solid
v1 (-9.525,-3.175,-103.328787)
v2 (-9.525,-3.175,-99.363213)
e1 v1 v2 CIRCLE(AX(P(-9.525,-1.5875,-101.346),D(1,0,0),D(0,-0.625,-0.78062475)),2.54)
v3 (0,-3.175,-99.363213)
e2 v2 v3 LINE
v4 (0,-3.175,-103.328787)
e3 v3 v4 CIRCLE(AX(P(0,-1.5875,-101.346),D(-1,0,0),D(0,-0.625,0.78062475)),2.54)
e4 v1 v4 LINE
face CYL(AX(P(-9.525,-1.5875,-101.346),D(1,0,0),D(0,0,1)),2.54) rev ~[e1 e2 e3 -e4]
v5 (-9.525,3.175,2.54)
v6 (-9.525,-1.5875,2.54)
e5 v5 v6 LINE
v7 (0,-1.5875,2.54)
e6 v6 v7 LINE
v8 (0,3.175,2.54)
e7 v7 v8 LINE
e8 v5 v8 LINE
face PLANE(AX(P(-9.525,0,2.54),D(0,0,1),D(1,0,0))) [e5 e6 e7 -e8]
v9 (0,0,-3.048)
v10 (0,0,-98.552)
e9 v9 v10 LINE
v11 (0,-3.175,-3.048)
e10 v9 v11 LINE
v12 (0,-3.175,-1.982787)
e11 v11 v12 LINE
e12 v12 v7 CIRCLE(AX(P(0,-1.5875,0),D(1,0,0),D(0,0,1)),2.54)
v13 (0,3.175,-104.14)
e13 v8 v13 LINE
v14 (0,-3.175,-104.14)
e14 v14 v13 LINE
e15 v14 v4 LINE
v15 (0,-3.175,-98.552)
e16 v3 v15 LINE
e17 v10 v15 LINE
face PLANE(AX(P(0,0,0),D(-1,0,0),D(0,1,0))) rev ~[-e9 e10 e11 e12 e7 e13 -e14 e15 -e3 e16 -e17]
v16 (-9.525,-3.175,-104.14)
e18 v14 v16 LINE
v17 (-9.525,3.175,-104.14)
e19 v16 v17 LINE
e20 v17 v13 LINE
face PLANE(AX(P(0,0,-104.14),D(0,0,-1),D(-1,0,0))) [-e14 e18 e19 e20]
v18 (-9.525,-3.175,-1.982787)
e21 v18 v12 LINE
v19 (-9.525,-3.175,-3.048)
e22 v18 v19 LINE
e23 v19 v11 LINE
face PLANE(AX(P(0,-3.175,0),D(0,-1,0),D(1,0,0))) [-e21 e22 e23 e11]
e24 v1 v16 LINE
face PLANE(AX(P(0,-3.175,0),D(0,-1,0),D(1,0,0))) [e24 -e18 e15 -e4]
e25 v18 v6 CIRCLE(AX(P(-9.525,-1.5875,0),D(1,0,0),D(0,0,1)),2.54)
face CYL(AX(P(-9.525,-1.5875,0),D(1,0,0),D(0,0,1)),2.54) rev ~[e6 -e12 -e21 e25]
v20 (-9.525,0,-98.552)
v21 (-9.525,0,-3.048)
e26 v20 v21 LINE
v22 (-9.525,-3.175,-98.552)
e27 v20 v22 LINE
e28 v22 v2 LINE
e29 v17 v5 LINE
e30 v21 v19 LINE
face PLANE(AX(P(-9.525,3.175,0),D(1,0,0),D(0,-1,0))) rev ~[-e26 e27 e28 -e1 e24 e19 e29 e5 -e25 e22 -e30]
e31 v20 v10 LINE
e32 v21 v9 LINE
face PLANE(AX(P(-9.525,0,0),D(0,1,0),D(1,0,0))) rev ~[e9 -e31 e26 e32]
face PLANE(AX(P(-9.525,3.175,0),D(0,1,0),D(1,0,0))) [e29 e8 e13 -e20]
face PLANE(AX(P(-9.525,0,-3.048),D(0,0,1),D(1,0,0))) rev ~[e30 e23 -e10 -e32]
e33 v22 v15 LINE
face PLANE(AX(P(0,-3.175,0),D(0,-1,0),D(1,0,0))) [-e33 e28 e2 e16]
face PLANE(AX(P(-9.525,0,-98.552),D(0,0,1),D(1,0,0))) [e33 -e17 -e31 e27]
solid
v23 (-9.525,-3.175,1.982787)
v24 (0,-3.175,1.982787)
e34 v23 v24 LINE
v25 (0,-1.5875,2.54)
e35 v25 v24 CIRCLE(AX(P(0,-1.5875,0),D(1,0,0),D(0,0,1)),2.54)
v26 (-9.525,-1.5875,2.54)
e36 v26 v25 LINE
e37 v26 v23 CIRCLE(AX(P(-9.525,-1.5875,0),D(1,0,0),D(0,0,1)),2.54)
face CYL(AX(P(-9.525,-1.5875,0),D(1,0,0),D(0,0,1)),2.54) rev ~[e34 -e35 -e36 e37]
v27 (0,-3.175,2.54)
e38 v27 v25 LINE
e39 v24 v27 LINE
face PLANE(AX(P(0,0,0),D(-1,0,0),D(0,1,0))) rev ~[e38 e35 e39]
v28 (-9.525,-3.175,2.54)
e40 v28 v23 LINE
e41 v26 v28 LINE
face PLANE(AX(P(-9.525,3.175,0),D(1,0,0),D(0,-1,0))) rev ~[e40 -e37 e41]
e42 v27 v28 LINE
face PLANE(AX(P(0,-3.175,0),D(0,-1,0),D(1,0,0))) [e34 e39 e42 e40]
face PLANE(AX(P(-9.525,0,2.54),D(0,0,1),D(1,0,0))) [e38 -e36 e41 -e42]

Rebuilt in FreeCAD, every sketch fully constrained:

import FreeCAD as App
import Part
import Sketcher
Q = App.Units.Quantity


def add_polygon(sketch, points):
    """Adds a closed chain of lines whose ends are joined by coincident constraints."""
    first, n = sketch.GeometryCount, len(points)
    for a, b in zip(points, points[1:] + points[:1]):
        sketch.addGeometry(Part.LineSegment(App.Vector(*a, 0), App.Vector(*b, 0)), False)
    for i in range(n):
        sketch.addConstraint(Sketcher.Constraint("Coincident", first + i, 2, first + (i + 1) % n, 1))

doc = App.newDocument("Part")
body = doc.addObject("PartDesign::Body", "Body")
body.AllowCompound = True

# Sketch on XZ plane
sketch1 = doc.addObject("Sketcher::SketchObject", "Sketch")
body.addObject(sketch1)
sketch1.AttachmentSupport = (doc.XZ_Plane, [""])
sketch1.MapMode = "FlatFace"
add_polygon(sketch1, [(-9.525, 0), (0, 0), (0, -101.6), (-9.525, -101.6)])  # lines 0-3
sketch1.addConstraint(Sketcher.Constraint("Horizontal", 0))
sketch1.addConstraint(Sketcher.Constraint("Vertical", 1))
sketch1.addConstraint(Sketcher.Constraint("Horizontal", 2))
sketch1.addConstraint(Sketcher.Constraint("Vertical", 3))
sketch1.addConstraint(Sketcher.Constraint("Coincident", 0, 2, -1, 1))
sketch1.addConstraint(Sketcher.Constraint("DistanceY", 1, 2, 1, 1, Q("4 in")))
sketch1.addConstraint(Sketcher.Constraint("DistanceX", 0, 1, 0, 2, Q("0.375 in")))
pad1 = doc.addObject("PartDesign::Pad", "Pad")
body.addObject(pad1)
pad1.Profile = sketch1
pad1.Length = Q("0.125 in")
pad1.Reversed = True

# Sketch on XY plane
sketch2 = doc.addObject("Sketcher::SketchObject", "Sketch001")
body.addObject(sketch2)
sketch2.AttachmentSupport = (doc.XY_Plane, [""])
sketch2.MapMode = "FlatFace"
sketch2.AttachmentOffset = App.Placement(App.Vector(0, 0, -4 * 25.4), App.Rotation())
add_polygon(sketch2, [(-9.525, 0), (-9.525, 3.175), (0, 3.175), (0, 0)])  # lines 0-3
sketch2.addConstraint(Sketcher.Constraint("Vertical", 0))
sketch2.addConstraint(Sketcher.Constraint("Horizontal", 1))
sketch2.addConstraint(Sketcher.Constraint("Vertical", 2))
sketch2.addConstraint(Sketcher.Constraint("Horizontal", 3))
sketch2.addConstraint(Sketcher.Constraint("Coincident", 2, 2, -1, 1))
sketch2.addConstraint(Sketcher.Constraint("DistanceX", 1, 1, 1, 2, Q("0.375 in")))
sketch2.addConstraint(Sketcher.Constraint("DistanceY", 0, 1, 0, 2, Q("0.125 in")))
pad2 = doc.addObject("PartDesign::Pad", "Pad001")
body.addObject(pad2)
pad2.Profile = sketch2
pad2.Length = Q("0.1 in")
pad2.Reversed = True

# Sketch on XY plane
sketch3 = doc.addObject("Sketcher::SketchObject", "Sketch002")
body.addObject(sketch3)
sketch3.AttachmentSupport = (doc.XY_Plane, [""])
sketch3.MapMode = "FlatFace"
add_polygon(sketch3, [(0, 3.175), (-9.525, 3.175), (-9.525, 0), (0, 0)])  # lines 0-3
sketch3.addConstraint(Sketcher.Constraint("Horizontal", 0))
sketch3.addConstraint(Sketcher.Constraint("Vertical", 1))
sketch3.addConstraint(Sketcher.Constraint("Horizontal", 2))
sketch3.addConstraint(Sketcher.Constraint("Vertical", 3))
sketch3.addConstraint(Sketcher.Constraint("Coincident", 2, 2, -1, 1))
sketch3.addConstraint(Sketcher.Constraint("DistanceX", 0, 2, 0, 1, Q("0.375 in")))
sketch3.addConstraint(Sketcher.Constraint("DistanceY", 1, 2, 1, 1, Q("0.125 in")))
pad3 = doc.addObject("PartDesign::Pad", "Pad002")
body.addObject(pad3)
pad3.Profile = sketch3
pad3.Length = Q("0.1 in")

# Sketch on XZ plane
sketch4 = doc.addObject("Sketcher::SketchObject", "Sketch003")
body.addObject(sketch4)
sketch4.AttachmentSupport = (doc.XZ_Plane, [""])
sketch4.MapMode = "FlatFace"
add_polygon(sketch4, [(-9.525, -104.14), (0, -104.14), (0, -98.552), (-9.525, -98.552)])  # lines 0-3
add_polygon(sketch4, [(-9.525, -3.048), (0, -3.048), (0, 2.54), (-9.525, 2.54)])  # lines 4-7
sketch4.addConstraint(Sketcher.Constraint("Horizontal", 0))
sketch4.addConstraint(Sketcher.Constraint("Vertical", 1))
sketch4.addConstraint(Sketcher.Constraint("Horizontal", 2))
sketch4.addConstraint(Sketcher.Constraint("Vertical", 3))
sketch4.addConstraint(Sketcher.Constraint("Horizontal", 4))
sketch4.addConstraint(Sketcher.Constraint("Vertical", 5))
sketch4.addConstraint(Sketcher.Constraint("Horizontal", 6))
sketch4.addConstraint(Sketcher.Constraint("Vertical", 7))
sketch4.addConstraint(Sketcher.Constraint("PointOnObject", 0, 2, -2))
sketch4.addConstraint(Sketcher.Constraint("PointOnObject", 4, 2, -2))
sketch4.addConstraint(Sketcher.Constraint("Vertical", 3, 2, 6, 2))
sketch4.addConstraint(Sketcher.Constraint("Equal", 3, 5))
sketch4.addConstraint(Sketcher.Constraint("DistanceY", 1, 1, 1, 2, Q("0.22 in")))
sketch4.addConstraint(Sketcher.Constraint("DistanceY", 0, 2, -1, 1, Q("4.1 in")))
sketch4.addConstraint(Sketcher.Constraint("DistanceY", -1, 1, 5, 2, Q("0.1 in")))
sketch4.addConstraint(Sketcher.Constraint("DistanceX", 0, 1, 0, 2, Q("0.375 in")))
pad4 = doc.addObject("PartDesign::Pad", "Pad003")
body.addObject(pad4)
pad4.Profile = sketch4
pad4.Length = Q("0.125 in")

# Sketch on YZ plane
sketch5 = doc.addObject("Sketcher::SketchObject", "Sketch004")
body.addObject(sketch5)
sketch5.AttachmentSupport = (doc.YZ_Plane, [""])
sketch5.MapMode = "FlatFace"
sketch5.AttachmentOffset = App.Placement(App.Vector(0, 0, -0.375 * 25.4), App.Rotation())
sketch5.addGeometry(Part.Circle(App.Vector(-1.5875, -101.346, 0), App.Vector(0, 0, 1), 2.54), False)
sketch5.addGeometry(Part.Circle(App.Vector(-1.5875, 0, 0), App.Vector(0, 0, 1), 2.54), False)
sketch5.addConstraint(Sketcher.Constraint("Equal", 0, 1))
sketch5.addConstraint(Sketcher.Constraint("PointOnObject", 1, 3, -1))
sketch5.addConstraint(Sketcher.Constraint("Vertical", 0, 3, 1, 3))
sketch5.addConstraint(Sketcher.Constraint("Diameter", 0, Q("0.2 in")))
sketch5.addConstraint(Sketcher.Constraint("DistanceY", 0, 3, -1, 1, Q("3.99 in")))
sketch5.addConstraint(Sketcher.Constraint("DistanceX", 0, 3, -1, 1, Q("0.0625 in")))
doc.recompute()
hole = doc.addObject("PartDesign::Hole", "Hole")
body.addObject(hole)
hole.Profile = sketch5
hole.ThreadType = "None"
hole.Diameter = Q("0.2 in")
hole.DepthType = "Dimension"
hole.Depth = Q("1 in")
hole.DrillPoint = "Angled"
hole.DrillPointAngle = 118
hole.Reversed = True

doc.recompute()
